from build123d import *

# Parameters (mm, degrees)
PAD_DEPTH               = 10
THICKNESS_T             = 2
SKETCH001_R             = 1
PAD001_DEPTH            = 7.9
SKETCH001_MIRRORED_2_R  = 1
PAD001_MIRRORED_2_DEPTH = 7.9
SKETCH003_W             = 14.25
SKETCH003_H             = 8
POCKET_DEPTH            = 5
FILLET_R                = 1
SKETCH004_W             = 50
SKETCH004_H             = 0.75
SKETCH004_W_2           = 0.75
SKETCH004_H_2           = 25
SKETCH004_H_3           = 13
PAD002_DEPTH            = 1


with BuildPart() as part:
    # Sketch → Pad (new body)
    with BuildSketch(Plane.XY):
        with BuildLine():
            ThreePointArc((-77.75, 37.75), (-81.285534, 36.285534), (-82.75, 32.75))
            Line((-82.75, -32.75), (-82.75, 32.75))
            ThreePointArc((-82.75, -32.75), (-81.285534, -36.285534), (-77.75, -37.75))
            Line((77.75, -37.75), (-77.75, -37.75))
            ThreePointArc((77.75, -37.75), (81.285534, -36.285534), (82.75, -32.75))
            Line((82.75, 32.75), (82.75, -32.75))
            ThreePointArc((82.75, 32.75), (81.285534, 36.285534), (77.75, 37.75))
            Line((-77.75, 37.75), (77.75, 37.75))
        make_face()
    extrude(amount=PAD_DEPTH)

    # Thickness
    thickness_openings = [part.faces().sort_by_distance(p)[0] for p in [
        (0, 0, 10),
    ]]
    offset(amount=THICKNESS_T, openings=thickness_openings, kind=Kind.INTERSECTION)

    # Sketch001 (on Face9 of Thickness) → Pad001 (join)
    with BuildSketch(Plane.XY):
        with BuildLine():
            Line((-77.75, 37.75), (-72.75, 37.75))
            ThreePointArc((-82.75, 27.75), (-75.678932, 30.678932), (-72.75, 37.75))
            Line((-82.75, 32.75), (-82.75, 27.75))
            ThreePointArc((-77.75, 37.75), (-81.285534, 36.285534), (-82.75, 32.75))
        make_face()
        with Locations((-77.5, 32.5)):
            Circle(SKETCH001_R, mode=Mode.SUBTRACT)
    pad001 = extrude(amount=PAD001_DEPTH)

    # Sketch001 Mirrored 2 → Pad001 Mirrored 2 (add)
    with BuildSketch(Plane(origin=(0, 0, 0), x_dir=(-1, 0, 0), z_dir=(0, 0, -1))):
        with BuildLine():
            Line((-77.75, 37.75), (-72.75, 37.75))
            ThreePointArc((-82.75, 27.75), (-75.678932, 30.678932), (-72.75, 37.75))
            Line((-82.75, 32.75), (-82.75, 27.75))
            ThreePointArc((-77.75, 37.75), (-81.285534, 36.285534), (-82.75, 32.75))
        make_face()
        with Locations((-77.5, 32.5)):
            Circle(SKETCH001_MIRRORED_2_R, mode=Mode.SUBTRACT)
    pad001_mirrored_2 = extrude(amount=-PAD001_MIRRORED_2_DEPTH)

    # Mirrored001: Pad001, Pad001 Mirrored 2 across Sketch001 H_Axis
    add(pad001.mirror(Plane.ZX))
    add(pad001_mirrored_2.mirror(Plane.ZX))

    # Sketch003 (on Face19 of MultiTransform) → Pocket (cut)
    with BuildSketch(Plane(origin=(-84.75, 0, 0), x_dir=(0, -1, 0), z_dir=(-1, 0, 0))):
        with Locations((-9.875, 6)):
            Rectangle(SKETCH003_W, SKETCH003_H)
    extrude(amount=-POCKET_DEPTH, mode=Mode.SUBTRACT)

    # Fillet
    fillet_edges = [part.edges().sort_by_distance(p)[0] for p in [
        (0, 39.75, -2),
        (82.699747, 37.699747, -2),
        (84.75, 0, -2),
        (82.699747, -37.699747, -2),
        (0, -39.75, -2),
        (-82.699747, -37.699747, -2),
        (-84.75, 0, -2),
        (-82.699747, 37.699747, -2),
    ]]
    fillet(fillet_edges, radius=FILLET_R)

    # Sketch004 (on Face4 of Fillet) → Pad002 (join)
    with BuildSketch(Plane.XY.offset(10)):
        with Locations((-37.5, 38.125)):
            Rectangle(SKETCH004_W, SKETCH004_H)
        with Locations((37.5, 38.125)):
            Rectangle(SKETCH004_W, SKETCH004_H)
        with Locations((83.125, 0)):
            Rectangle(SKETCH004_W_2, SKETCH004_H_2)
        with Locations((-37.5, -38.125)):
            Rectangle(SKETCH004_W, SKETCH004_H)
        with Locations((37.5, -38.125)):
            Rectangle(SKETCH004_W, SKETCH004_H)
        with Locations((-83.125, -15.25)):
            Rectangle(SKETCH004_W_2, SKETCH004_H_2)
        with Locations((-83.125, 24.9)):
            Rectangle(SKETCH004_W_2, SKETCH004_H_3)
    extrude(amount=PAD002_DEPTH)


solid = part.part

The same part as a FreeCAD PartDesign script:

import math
import FreeCAD as App
import Part
import Sketcher


def edges_at(feature, points):
    """Names of the edges that pass closest to the given points."""
    edges = feature.Shape.Edges
    near = lambda p: min(range(len(edges)), key=lambda i: edges[i].distToShape(Part.Vertex(*p))[0])
    return sorted({f"Edge{near(p) + 1}" for p in points})


def faces_at(feature, points):
    """Names of the faces that lie closest to the given points."""
    faces = feature.Shape.Faces
    near = lambda p: min(range(len(faces)), key=lambda i: faces[i].distToShape(Part.Vertex(*p))[0])
    return sorted({f"Face{near(p) + 1}" for p in points})


def add_polygon(sketch, points):
    """Adds a closed chain of lines whose ends are joined by coincident constraints."""
    first, n = sketch.GeometryCount, len(points)
    for a, b in zip(points, points[1:] + points[:1]):
        sketch.addGeometry(Part.LineSegment(App.Vector(*a, 0), App.Vector(*b, 0)), False)
    for i in range(n):
        sketch.addConstraint(Sketcher.Constraint("Coincident", first + i, 2, first + (i + 1) % n, 1))

doc = App.newDocument("Part")
body = doc.addObject("PartDesign::Body", "Body")

# Sketch on XY plane
sketch1 = body.newObject("Sketcher::SketchObject", "Sketch")
sketch1.AttachmentSupport = (doc.getObject("XY_Plane"), [""])
sketch1.MapMode = "FlatFace"
sketch1.addGeometry(Part.ArcOfCircle(Part.Circle(App.Vector(-77.8, 32.8, 0), App.Vector(0, 0, 1), 5), math.radians(90), math.radians(180)), False)
sketch1.addGeometry(Part.LineSegment(App.Vector(-82.8, 32.8, 0), App.Vector(-82.8, -32.8, 0)), False)
sketch1.addGeometry(Part.ArcOfCircle(Part.Circle(App.Vector(-77.8, -32.8, 0), App.Vector(0, 0, 1), 5), math.radians(180), math.radians(270)), False)
sketch1.addGeometry(Part.LineSegment(App.Vector(-77.8, -37.8, 0), App.Vector(77.8, -37.8, 0)), False)
sketch1.addGeometry(Part.ArcOfCircle(Part.Circle(App.Vector(77.8, -32.8, 0), App.Vector(0, 0, 1), 5), math.radians(-90), math.radians(0)), False)
sketch1.addGeometry(Part.LineSegment(App.Vector(82.8, -32.8, 0), App.Vector(82.8, 32.8, 0)), False)
sketch1.addGeometry(Part.ArcOfCircle(Part.Circle(App.Vector(77.8, 32.8, 0), App.Vector(0, 0, 1), 5), math.radians(0), math.radians(90)), False)
sketch1.addGeometry(Part.LineSegment(App.Vector(77.8, 37.8, 0), App.Vector(-77.8, 37.8, 0)), False)
sketch1.addConstraint(Sketcher.Constraint("Tangent", 0, 2, 1, 1))
sketch1.addConstraint(Sketcher.Constraint("Tangent", 1, 2, 2, 1))
sketch1.addConstraint(Sketcher.Constraint("Tangent", 2, 2, 3, 1))
sketch1.addConstraint(Sketcher.Constraint("Tangent", 3, 2, 4, 1))
sketch1.addConstraint(Sketcher.Constraint("Tangent", 4, 2, 5, 1))
sketch1.addConstraint(Sketcher.Constraint("Tangent", 5, 2, 6, 1))
sketch1.addConstraint(Sketcher.Constraint("Tangent", 6, 2, 7, 1))
sketch1.addConstraint(Sketcher.Constraint("Tangent", 7, 2, 0, 1))
sketch1.addConstraint(Sketcher.Constraint("Vertical", 1))
sketch1.addConstraint(Sketcher.Constraint("Horizontal", 3))
sketch1.addConstraint(Sketcher.Constraint("Vertical", 5))
sketch1.addConstraint(Sketcher.Constraint("Horizontal", 7))
sketch1.addConstraint(Sketcher.Constraint("Equal", 0, 2))
sketch1.addConstraint(Sketcher.Constraint("Equal", 2, 4))
sketch1.addConstraint(Sketcher.Constraint("Equal", 4, 6))
sketch1.addConstraint(Sketcher.Constraint("Symmetric", 0, 3, 4, 3, -1, 1))
sketch1.addConstraint(Sketcher.Constraint("Radius", 0, 5.0))
sketch1.addConstraint(Sketcher.Constraint("DistanceX", 3, 1, 3, 2, 155.5))
sketch1.addConstraint(Sketcher.Constraint("DistanceY", 1, 2, 1, 1, 65.5))
pad1 = body.newObject("PartDesign::Pad", "Pad")
pad1.Profile = sketch1
pad1.Length = 10
doc.recompute()

thickness = body.newObject("PartDesign::Thickness", "Thickness")
thickness.Base = (pad1, faces_at(pad1, [(0, 0, 10)]))
thickness.Value = 2
thickness.Reversed = False
thickness.Join = "Intersection"

# Sketch on XY plane
sketch2 = body.newObject("Sketcher::SketchObject", "Sketch001")
sketch2.AttachmentSupport = (doc.getObject("XY_Plane"), [""])
sketch2.MapMode = "FlatFace"
sketch2.addGeometry(Part.LineSegment(App.Vector(-72.8, 37.8, 0), App.Vector(-77.8, 37.8, 0)), False)
sketch2.addGeometry(Part.ArcOfCircle(Part.Circle(App.Vector(-77.8, 32.8, 0), App.Vector(0, 0, 1), 5), math.radians(90), math.radians(180)), False)
sketch2.addGeometry(Part.LineSegment(App.Vector(-82.8, 32.8, 0), App.Vector(-82.8, 27.8, 0)), False)
sketch2.addGeometry(Part.ArcOfCircle(Part.Circle(App.Vector(-82.7, 37.7, 0), App.Vector(0, 0, 1), 10), math.radians(-90), math.radians(0)), False)
sketch2.addGeometry(Part.Circle(App.Vector(-77.5, 32.5, 0), App.Vector(0, 0, 1), 1), False)
sketch2.addConstraint(Sketcher.Constraint("Tangent", 0, 2, 1, 1))
sketch2.addConstraint(Sketcher.Constraint("Tangent", 1, 2, 2, 1))
sketch2.addConstraint(Sketcher.Constraint("Coincident", 2, 2, 3, 1))
sketch2.addConstraint(Sketcher.Constraint("Coincident", 3, 2, 0, 1))
sketch2.addConstraint(Sketcher.Constraint("Horizontal", 0))
sketch2.addConstraint(Sketcher.Constraint("Vertical", 2))
sketch2.addConstraint(Sketcher.Constraint("Horizontal", 3, 3, 0, 2))
sketch2.addConstraint(Sketcher.Constraint("Vertical", 3, 3, 1, 2))
sketch2.addConstraint(Sketcher.Constraint("Diameter", 4, 2.0))
sketch2.addConstraint(Sketcher.Constraint("Radius", 1, 5.0))
sketch2.addConstraint(Sketcher.Constraint("Radius", 3, 9.999999))
sketch2.addConstraint(Sketcher.Constraint("DistanceX", 4, 3, -1, 1, 77.5))
sketch2.addConstraint(Sketcher.Constraint("DistanceY", -1, 1, 4, 3, 32.5))
sketch2.addConstraint(Sketcher.Constraint("DistanceX", 1, 3, -1, 1, 77.75))
sketch2.addConstraint(Sketcher.Constraint("DistanceY", -1, 1, 1, 3, 32.75))
pad2 = body.newObject("PartDesign::Pad", "Pad001")
pad2.Profile = sketch2
pad2.Length = 7.9

# Sketch on XY plane
sketch3 = body.newObject("Sketcher::SketchObject", "Sketch002")
sketch3.AttachmentSupport = (doc.getObject("XY_Plane"), [""])
sketch3.MapMode = "FlatFace"
sketch3.addGeometry(Part.LineSegment(App.Vector(72.8, 37.8, 0), App.Vector(77.8, 37.8, 0)), False)
sketch3.addGeometry(Part.ArcOfCircle(Part.Circle(App.Vector(77.8, 32.8, 0), App.Vector(0, 0, 1), 5), math.radians(0), math.radians(90)), False)
sketch3.addGeometry(Part.LineSegment(App.Vector(82.8, 32.8, 0), App.Vector(82.8, 27.8, 0)), False)
sketch3.addGeometry(Part.ArcOfCircle(Part.Circle(App.Vector(82.7, 37.7, 0), App.Vector(0, 0, 1), 10), math.radians(180), math.radians(270)), False)
sketch3.addGeometry(Part.Circle(App.Vector(77.5, 32.5, 0), App.Vector(0, 0, 1), 1), False)
sketch3.addConstraint(Sketcher.Constraint("Tangent", 0, 2, 1, 2))
sketch3.addConstraint(Sketcher.Constraint("Tangent", 1, 1, 2, 1))
sketch3.addConstraint(Sketcher.Constraint("Coincident", 2, 2, 3, 2))
sketch3.addConstraint(Sketcher.Constraint("Coincident", 3, 1, 0, 1))
sketch3.addConstraint(Sketcher.Constraint("Horizontal", 0))
sketch3.addConstraint(Sketcher.Constraint("Vertical", 2))
sketch3.addConstraint(Sketcher.Constraint("Horizontal", 3, 3, 0, 2))
sketch3.addConstraint(Sketcher.Constraint("Vertical", 3, 3, 1, 1))
sketch3.addConstraint(Sketcher.Constraint("Diameter", 4, 2.0))
sketch3.addConstraint(Sketcher.Constraint("Radius", 1, 5.0))
sketch3.addConstraint(Sketcher.Constraint("Radius", 3, 9.999999))
sketch3.addConstraint(Sketcher.Constraint("DistanceX", -1, 1, 4, 3, 77.5))
sketch3.addConstraint(Sketcher.Constraint("DistanceY", -1, 1, 4, 3, 32.5))
sketch3.addConstraint(Sketcher.Constraint("DistanceX", -1, 1, 1, 3, 77.75))
sketch3.addConstraint(Sketcher.Constraint("DistanceY", -1, 1, 1, 3, 32.75))
pad3 = body.newObject("PartDesign::Pad", "Pad002")
pad3.Profile = sketch3
pad3.Length = 7.9
doc.recompute()

mirrored = body.newObject("PartDesign::Mirrored", "Mirrored")
mirrored.Originals = [pad2, pad3]
mirrored.MirrorPlane = (doc.getObject("XZ_Plane"), [""])
body.Tip = mirrored

# Sketch on YZ plane
sketch4 = body.newObject("Sketcher::SketchObject", "Sketch003")
sketch4.AttachmentSupport = (doc.getObject("YZ_Plane"), [""])
sketch4.MapMode = "FlatFace"
sketch4.AttachmentOffset = App.Placement(App.Vector(0, 0, -84.75), App.Rotation())
add_polygon(sketch4, [(17, 10), (17, 2), (3, 2), (3, 10)])  # lines 0-3
sketch4.addConstraint(Sketcher.Constraint("Vertical", 0))
sketch4.addConstraint(Sketcher.Constraint("Horizontal", 1))
sketch4.addConstraint(Sketcher.Constraint("Vertical", 2))
sketch4.addConstraint(Sketcher.Constraint("Horizontal", 3))
sketch4.addConstraint(Sketcher.Constraint("DistanceY", 0, 2, 0, 1, 8.0))
sketch4.addConstraint(Sketcher.Constraint("DistanceX", -1, 1, 0, 2, 17.0))
sketch4.addConstraint(Sketcher.Constraint("DistanceY", -1, 1, 0, 2, 2.0))
sketch4.addConstraint(Sketcher.Constraint("DistanceX", 1, 2, 1, 1, 14.25))
pocket1 = body.newObject("PartDesign::Pocket", "Pocket")
pocket1.Profile = sketch4
pocket1.Length = 5
pocket1.Reversed = True
doc.recompute()

fillet = body.newObject("PartDesign::Fillet", "Fillet")
fillet.Base = (pocket1, edges_at(pocket1, [
    (0, 39.75, -2),
    (82.7, 37.7, -2),
    (84.75, 0, -2),
    (82.7, -37.7, -2),
    (0, -39.75, -2),
    (-82.7, -37.7, -2),
    (-84.75, 0, -2),
    (-82.7, 37.7, -2),
]))
fillet.Radius = 1

# Sketch on XY plane
sketch5 = body.newObject("Sketcher::SketchObject", "Sketch004")
sketch5.AttachmentSupport = (doc.getObject("XY_Plane"), [""])
sketch5.MapMode = "FlatFace"
sketch5.AttachmentOffset = App.Placement(App.Vector(0, 0, 10), App.Rotation())
add_polygon(sketch5, [(-62.5, 38.5), (-62.5, 37.8), (-12.5, 37.8), (-12.5, 38.5)])  # lines 0-3
add_polygon(sketch5, [(12.5, 38.5), (12.5, 37.8), (62.5, 37.8), (62.5, 38.5)])  # lines 4-7
add_polygon(sketch5, [(82.8, 12.5), (82.8, -12.5), (83.5, -12.5), (83.5, 12.5)])  # lines 8-11
add_polygon(sketch5, [(-62.5, -37.8), (-62.5, -38.5), (-12.5, -38.5), (-12.5, -37.8)])  # lines 12-15
add_polygon(sketch5, [(12.5, -37.8), (12.5, -38.5), (62.5, -38.5), (62.5, -37.8)])  # lines 16-19
add_polygon(sketch5, [(-83.5, -2.8), (-83.5, -27.8), (-82.8, -27.8), (-82.8, -2.8)])  # lines 20-23
add_polygon(sketch5, [(-83.5, 31.4), (-83.5, 18.4), (-82.8, 18.4), (-82.8, 31.4)])  # lines 24-27
sketch5.addConstraint(Sketcher.Constraint("Vertical", 0))
sketch5.addConstraint(Sketcher.Constraint("Horizontal", 1))
sketch5.addConstraint(Sketcher.Constraint("Vertical", 2))
sketch5.addConstraint(Sketcher.Constraint("Horizontal", 3))
sketch5.addConstraint(Sketcher.Constraint("Vertical", 4))
sketch5.addConstraint(Sketcher.Constraint("Horizontal", 5))
sketch5.addConstraint(Sketcher.Constraint("Vertical", 6))
sketch5.addConstraint(Sketcher.Constraint("Horizontal", 7))
sketch5.addConstraint(Sketcher.Constraint("Vertical", 8))
sketch5.addConstraint(Sketcher.Constraint("Horizontal", 9))
sketch5.addConstraint(Sketcher.Constraint("Vertical", 10))
sketch5.addConstraint(Sketcher.Constraint("Horizontal", 11))
sketch5.addConstraint(Sketcher.Constraint("Vertical", 12))
sketch5.addConstraint(Sketcher.Constraint("Horizontal", 13))
sketch5.addConstraint(Sketcher.Constraint("Vertical", 14))
sketch5.addConstraint(Sketcher.Constraint("Horizontal", 15))
sketch5.addConstraint(Sketcher.Constraint("Vertical", 16))
sketch5.addConstraint(Sketcher.Constraint("Horizontal", 17))
sketch5.addConstraint(Sketcher.Constraint("Vertical", 18))
sketch5.addConstraint(Sketcher.Constraint("Horizontal", 19))
sketch5.addConstraint(Sketcher.Constraint("Vertical", 20))
sketch5.addConstraint(Sketcher.Constraint("Horizontal", 21))
sketch5.addConstraint(Sketcher.Constraint("Vertical", 22))
sketch5.addConstraint(Sketcher.Constraint("Horizontal", 23))
sketch5.addConstraint(Sketcher.Constraint("Vertical", 24))
sketch5.addConstraint(Sketcher.Constraint("Horizontal", 25))
sketch5.addConstraint(Sketcher.Constraint("Vertical", 26))
sketch5.addConstraint(Sketcher.Constraint("Horizontal", 27))
sketch5.addConstraint(Sketcher.Constraint("Symmetric", 6, 2, 12, 2, -1, 1))
sketch5.addConstraint(Sketcher.Constraint("Symmetric", 4, 2, 14, 2, -1, 1))
sketch5.addConstraint(Sketcher.Constraint("Symmetric", 2, 2, 16, 2, -1, 1))
sketch5.addConstraint(Sketcher.Constraint("Symmetric", 0, 2, 18, 2, -1, 1))
sketch5.addConstraint(Sketcher.Constraint("Symmetric", 1, 2, 4, 2, -2))
sketch5.addConstraint(Sketcher.Constraint("Symmetric", 3, 2, 6, 2, -2))
sketch5.addConstraint(Sketcher.Constraint("Vertical", 23, 2, 24, 2))
sketch5.addConstraint(Sketcher.Constraint("Vertical", 22, 2, 25, 2))
sketch5.addConstraint(Sketcher.Constraint("Equal", 11, 21))
sketch5.addConstraint(Sketcher.Constraint("Equal", 27, 0))
sketch5.addConstraint(Sketcher.Constraint("Equal", 10, 20))
sketch5.addConstraint(Sketcher.Constraint("DistanceX", 1, 1, 1, 2, 50.0))
sketch5.addConstraint(Sketcher.Constraint("DistanceY", 8, 2, 8, 1, 25.0))
sketch5.addConstraint(Sketcher.Constraint("DistanceY", 24, 2, 24, 1, 13.0))
sketch5.addConstraint(Sketcher.Constraint("DistanceX", 1, 2, 4, 2, 25.0))
sketch5.addConstraint(Sketcher.Constraint("DistanceY", 8, 2, 6, 2, 51.0))
sketch5.addConstraint(Sketcher.Constraint("DistanceX", 5, 2, 9, 2, 21.0))
sketch5.addConstraint(Sketcher.Constraint("DistanceY", 12, 2, 3, 2, 77.0))
sketch5.addConstraint(Sketcher.Constraint("DistanceX", 20, 2, 15, 2, 21.0))
sketch5.addConstraint(Sketcher.Constraint("DistanceY", 15, 2, 20, 2, 10.0))
sketch5.addConstraint(Sketcher.Constraint("DistanceX", 9, 1, 9, 2, 0.75))
sketch5.addConstraint(Sketcher.Constraint("DistanceY", -1, 1, 24, 2, 18.4))
pad4 = body.newObject("PartDesign::Pad", "Pad003")
pad4.Profile = sketch5
pad4.Length = 1

doc.recompute()
